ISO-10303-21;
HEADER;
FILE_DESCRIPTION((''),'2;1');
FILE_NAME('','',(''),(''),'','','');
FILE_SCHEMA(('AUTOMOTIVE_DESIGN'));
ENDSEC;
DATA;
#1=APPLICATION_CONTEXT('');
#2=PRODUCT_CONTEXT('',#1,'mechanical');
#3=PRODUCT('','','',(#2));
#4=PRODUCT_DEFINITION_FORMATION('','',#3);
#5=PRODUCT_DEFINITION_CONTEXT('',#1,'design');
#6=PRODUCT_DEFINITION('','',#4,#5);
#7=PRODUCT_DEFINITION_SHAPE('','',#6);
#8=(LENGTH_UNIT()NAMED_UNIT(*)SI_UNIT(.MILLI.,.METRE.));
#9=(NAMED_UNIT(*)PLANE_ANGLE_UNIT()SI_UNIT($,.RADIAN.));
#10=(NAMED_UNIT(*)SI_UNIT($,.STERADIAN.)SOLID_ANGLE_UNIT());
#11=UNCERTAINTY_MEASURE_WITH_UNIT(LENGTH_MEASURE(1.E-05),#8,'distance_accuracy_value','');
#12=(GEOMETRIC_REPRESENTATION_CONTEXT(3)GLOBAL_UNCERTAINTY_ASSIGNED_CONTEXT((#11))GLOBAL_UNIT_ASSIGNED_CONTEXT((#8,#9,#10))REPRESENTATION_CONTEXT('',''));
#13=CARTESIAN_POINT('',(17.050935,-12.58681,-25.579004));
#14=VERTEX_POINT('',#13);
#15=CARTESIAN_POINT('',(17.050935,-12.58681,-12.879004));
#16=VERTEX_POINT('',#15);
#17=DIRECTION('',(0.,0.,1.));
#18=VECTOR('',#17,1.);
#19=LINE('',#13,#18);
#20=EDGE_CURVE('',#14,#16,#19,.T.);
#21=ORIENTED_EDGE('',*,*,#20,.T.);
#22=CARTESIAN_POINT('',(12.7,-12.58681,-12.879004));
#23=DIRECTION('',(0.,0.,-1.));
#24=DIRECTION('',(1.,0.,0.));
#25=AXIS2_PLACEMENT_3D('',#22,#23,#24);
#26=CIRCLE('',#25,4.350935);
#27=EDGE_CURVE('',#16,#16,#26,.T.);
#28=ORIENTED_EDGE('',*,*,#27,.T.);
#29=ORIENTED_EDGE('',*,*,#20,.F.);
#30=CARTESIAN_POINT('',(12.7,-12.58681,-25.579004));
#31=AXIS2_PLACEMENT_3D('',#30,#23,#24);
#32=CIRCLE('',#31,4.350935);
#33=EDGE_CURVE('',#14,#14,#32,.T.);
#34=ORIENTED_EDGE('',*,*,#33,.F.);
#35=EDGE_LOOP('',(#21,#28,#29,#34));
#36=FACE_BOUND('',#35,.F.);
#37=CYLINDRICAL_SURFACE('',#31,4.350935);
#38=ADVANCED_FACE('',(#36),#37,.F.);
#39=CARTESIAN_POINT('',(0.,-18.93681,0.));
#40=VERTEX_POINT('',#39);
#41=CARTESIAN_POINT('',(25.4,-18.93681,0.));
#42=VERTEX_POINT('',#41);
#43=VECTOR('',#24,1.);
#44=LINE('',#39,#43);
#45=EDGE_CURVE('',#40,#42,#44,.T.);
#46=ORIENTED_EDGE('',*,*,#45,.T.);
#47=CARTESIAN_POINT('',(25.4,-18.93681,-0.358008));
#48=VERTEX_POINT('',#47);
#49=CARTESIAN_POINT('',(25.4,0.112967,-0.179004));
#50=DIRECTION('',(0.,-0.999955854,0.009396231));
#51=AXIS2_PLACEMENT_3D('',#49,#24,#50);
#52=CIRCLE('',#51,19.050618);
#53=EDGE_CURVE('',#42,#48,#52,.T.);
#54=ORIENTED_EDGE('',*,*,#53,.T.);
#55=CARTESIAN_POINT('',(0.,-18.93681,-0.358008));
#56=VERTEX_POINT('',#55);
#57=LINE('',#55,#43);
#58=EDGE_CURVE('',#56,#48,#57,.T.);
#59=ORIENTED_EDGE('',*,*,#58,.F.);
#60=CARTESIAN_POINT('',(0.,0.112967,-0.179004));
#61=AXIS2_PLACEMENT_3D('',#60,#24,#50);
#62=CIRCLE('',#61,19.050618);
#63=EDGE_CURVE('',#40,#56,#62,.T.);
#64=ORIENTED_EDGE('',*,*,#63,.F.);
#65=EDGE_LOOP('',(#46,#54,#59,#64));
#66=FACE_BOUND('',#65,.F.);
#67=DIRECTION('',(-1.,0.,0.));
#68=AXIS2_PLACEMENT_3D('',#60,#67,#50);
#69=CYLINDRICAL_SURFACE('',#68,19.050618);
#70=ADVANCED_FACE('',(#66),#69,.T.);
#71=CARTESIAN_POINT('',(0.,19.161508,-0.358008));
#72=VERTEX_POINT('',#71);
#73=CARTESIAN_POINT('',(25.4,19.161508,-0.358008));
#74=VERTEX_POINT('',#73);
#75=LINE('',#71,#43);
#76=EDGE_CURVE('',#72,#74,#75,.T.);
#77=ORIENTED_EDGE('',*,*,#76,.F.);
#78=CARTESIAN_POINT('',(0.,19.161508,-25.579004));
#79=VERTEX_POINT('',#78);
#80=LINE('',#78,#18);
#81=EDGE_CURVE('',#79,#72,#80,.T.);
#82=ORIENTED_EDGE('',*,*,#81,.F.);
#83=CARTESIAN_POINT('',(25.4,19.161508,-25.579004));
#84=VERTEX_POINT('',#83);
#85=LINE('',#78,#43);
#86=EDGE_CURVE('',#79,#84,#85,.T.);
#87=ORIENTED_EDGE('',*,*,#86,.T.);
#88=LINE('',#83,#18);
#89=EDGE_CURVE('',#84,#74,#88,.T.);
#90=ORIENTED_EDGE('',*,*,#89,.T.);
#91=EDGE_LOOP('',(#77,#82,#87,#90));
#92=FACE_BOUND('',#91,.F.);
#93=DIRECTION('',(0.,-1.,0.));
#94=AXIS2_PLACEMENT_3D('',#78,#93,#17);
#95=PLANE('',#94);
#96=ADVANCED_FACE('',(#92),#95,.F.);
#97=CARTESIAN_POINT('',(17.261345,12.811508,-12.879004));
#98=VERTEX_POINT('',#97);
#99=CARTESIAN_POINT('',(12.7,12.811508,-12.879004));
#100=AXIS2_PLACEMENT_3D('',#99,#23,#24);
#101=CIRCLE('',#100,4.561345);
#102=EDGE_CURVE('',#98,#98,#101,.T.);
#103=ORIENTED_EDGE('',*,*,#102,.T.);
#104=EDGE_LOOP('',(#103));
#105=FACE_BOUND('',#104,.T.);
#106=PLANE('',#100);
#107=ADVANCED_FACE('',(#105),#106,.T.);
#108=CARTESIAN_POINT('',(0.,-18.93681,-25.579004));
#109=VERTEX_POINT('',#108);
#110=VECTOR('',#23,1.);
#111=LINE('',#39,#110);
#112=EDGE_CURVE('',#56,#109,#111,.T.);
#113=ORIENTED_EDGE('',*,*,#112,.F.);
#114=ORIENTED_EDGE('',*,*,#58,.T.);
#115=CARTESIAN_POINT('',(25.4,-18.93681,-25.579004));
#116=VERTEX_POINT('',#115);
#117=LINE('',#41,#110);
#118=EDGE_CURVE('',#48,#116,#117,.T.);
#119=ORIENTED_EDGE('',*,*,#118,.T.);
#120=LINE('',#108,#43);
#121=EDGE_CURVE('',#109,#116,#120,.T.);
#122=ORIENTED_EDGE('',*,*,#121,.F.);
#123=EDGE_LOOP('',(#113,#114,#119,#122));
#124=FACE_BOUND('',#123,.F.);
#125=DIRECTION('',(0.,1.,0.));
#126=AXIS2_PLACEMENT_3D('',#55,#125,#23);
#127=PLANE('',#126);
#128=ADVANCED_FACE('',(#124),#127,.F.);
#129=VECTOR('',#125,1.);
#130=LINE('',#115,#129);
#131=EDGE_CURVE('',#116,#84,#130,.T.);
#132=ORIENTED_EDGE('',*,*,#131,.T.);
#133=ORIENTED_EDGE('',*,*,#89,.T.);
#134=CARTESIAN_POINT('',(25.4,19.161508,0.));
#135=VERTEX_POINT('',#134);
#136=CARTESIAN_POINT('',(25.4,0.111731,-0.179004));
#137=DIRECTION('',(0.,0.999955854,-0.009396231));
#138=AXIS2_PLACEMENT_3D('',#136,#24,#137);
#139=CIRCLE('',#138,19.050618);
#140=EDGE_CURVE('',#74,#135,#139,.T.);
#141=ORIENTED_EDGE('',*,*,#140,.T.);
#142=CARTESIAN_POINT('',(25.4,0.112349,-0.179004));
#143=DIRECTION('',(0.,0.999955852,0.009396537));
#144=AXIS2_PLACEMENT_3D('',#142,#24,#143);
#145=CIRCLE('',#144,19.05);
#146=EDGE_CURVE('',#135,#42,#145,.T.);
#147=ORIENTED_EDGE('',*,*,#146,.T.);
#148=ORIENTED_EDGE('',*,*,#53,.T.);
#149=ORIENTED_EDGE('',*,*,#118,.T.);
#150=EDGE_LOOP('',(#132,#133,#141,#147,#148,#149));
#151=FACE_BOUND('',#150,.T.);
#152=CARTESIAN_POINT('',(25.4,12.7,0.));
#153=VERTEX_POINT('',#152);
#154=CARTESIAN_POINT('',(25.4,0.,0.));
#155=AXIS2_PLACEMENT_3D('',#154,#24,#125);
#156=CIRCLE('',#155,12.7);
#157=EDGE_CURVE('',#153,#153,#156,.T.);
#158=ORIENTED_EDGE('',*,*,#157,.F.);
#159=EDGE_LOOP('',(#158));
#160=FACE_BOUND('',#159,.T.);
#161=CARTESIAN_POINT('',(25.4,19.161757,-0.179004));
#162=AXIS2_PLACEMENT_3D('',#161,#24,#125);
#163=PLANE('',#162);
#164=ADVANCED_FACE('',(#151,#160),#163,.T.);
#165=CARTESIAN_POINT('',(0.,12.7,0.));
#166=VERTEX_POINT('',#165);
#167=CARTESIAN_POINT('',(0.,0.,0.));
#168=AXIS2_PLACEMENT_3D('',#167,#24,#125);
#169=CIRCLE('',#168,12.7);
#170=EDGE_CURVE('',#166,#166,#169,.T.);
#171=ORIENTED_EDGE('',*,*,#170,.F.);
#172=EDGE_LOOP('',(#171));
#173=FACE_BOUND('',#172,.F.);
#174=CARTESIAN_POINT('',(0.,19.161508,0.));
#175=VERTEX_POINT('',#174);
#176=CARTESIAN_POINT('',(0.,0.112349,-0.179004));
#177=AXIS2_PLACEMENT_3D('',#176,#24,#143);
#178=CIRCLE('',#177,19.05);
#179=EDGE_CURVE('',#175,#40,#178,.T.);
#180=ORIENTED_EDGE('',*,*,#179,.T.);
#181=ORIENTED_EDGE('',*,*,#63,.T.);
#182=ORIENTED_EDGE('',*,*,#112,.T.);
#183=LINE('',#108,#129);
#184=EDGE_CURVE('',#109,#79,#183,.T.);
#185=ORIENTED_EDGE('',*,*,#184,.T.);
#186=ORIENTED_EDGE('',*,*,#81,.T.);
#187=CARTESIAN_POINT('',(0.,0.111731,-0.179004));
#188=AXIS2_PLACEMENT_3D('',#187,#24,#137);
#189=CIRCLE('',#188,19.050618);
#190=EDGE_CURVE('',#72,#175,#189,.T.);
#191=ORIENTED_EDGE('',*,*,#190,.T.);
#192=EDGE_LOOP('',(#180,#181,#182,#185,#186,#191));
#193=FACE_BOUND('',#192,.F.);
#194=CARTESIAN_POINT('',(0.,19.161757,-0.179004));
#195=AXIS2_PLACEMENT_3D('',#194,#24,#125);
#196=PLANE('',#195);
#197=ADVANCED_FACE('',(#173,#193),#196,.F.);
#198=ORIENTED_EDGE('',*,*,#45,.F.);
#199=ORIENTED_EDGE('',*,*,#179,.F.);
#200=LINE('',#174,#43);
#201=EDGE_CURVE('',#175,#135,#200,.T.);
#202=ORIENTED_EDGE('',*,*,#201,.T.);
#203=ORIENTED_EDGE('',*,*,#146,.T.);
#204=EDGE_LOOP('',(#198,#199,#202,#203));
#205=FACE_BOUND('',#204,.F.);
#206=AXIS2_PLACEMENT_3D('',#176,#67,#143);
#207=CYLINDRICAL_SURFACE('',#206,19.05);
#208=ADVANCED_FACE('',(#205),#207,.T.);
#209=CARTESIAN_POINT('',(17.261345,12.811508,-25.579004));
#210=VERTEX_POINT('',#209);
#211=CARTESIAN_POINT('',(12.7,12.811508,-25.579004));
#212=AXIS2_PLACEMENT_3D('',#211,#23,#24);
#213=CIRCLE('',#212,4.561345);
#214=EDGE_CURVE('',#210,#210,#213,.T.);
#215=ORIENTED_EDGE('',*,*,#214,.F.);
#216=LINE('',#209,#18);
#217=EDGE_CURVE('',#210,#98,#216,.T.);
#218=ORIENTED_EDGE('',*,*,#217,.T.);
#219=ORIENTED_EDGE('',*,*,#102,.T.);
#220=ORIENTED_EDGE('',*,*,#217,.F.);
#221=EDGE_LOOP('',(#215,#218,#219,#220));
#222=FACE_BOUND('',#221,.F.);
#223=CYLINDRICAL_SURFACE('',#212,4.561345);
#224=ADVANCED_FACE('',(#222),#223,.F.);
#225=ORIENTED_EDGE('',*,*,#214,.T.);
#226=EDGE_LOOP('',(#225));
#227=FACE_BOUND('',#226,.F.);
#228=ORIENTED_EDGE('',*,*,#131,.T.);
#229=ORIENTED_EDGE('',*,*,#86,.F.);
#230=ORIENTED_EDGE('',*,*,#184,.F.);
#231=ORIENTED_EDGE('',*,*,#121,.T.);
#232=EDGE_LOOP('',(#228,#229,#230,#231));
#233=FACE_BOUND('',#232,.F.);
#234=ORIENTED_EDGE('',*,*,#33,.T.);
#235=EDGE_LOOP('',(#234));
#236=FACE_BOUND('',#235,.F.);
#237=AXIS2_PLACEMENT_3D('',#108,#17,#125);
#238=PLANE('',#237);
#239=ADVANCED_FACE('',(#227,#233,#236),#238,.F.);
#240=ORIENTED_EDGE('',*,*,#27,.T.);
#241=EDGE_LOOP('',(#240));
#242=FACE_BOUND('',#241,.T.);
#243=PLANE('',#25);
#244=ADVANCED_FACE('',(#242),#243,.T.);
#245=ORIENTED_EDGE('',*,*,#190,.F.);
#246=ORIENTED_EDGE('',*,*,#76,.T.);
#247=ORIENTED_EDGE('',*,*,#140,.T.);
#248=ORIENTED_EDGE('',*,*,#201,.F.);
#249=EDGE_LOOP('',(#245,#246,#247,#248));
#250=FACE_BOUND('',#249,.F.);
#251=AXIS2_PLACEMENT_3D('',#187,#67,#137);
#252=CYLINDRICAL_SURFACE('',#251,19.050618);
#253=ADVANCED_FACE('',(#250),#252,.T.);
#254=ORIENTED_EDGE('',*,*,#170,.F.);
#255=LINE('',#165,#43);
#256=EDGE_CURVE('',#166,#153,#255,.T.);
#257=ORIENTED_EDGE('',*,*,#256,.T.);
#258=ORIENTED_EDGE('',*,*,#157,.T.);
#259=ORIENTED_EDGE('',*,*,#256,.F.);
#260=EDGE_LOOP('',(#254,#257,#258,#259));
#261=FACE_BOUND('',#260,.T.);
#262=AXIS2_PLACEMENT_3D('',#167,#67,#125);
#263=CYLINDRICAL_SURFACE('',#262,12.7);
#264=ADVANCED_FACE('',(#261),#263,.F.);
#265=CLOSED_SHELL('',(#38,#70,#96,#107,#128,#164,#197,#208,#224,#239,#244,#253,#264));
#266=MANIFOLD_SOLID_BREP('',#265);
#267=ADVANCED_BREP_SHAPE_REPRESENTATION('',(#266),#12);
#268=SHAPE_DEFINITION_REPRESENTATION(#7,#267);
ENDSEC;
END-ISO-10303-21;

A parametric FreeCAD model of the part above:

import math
import FreeCAD as App
import Part
import Sketcher
from FreeCAD import Vector
Q = App.Units.Quantity

doc = App.newDocument("Part")
body = doc.addObject("PartDesign::Body", "Body")

# Sketch on YZ plane
sketch1 = body.newObject("Sketcher::SketchObject", "Sketch")
sketch1.AttachmentSupport = (doc.getObject("YZ_Plane"), [""])
sketch1.MapMode = "FlatFace"
sketch1.addGeometry(Part.ArcOfCircle(Part.Circle(Vector(0.111731, -0.179004, 0), Vector(0, 0, 1), 19.050618), math.radians(-0.538372), math.radians(0.538372)), False)
sketch1.addGeometry(Part.ArcOfCircle(Part.Circle(Vector(0.112349, -0.179004, 0), Vector(0, 0, 1), 19.05), math.radians(0.53839), math.radians(179.46161)), False)
sketch1.addGeometry(Part.ArcOfCircle(Part.Circle(Vector(0.112967, -0.179004, 0), Vector(0, 0, 1), 19.050618), math.radians(179.461628), math.radians(180.538372)), False)
sketch1.addGeometry(Part.LineSegment(Vector(-18.93681, -0.358008, 0), Vector(-18.93681, -25.579004, 0)), False)
sketch1.addGeometry(Part.LineSegment(Vector(-18.93681, -25.579004, 0), Vector(19.161508, -25.579004, 0)), False)
sketch1.addGeometry(Part.LineSegment(Vector(19.161508, -25.579004, 0), Vector(19.161508, -0.358008, 0)), False)
sketch1.addGeometry(Part.Circle(Vector(0, 0, 0), Vector(0, 0, 1), 12.7), False)
sketch1.addConstraint(Sketcher.Constraint("Coincident", 0, 2, 1, 1))
sketch1.addConstraint(Sketcher.Constraint("Coincident", 1, 2, 2, 1))
sketch1.addConstraint(Sketcher.Constraint("Coincident", 2, 2, 3, 1))
sketch1.addConstraint(Sketcher.Constraint("Coincident", 3, 2, 4, 1))
sketch1.addConstraint(Sketcher.Constraint("Coincident", 4, 2, 5, 1))
sketch1.addConstraint(Sketcher.Constraint("Coincident", 5, 2, 0, 1))
sketch1.addConstraint(Sketcher.Constraint("Vertical", 3))
sketch1.addConstraint(Sketcher.Constraint("Horizontal", 4))
sketch1.addConstraint(Sketcher.Constraint("Vertical", 5))
sketch1.addConstraint(Sketcher.Constraint("Coincident", 6, 3, -1, 1))
sketch1.addConstraint(Sketcher.Constraint("PointOnObject", 0, 2, -1))
sketch1.addConstraint(Sketcher.Constraint("PointOnObject", 1, 2, -1))
sketch1.addConstraint(Sketcher.Constraint("Diameter", 6, Q("1 in")))
sketch1.addConstraint(Sketcher.Constraint("Radius", 1, Q("0.75 in")))
sketch1.addConstraint(Sketcher.Constraint("DistanceY", 3, 2, 0, 3, Q("1 in")))
sketch1.addConstraint(Sketcher.Constraint("DistanceY", 3, 2, 1, 3, Q("1 in")))
sketch1.addConstraint(Sketcher.Constraint("DistanceY", 3, 2, 2, 3, Q("1 in")))
sketch1.addConstraint(Sketcher.Constraint("Radius", 0, Q("19.050618 mm")))
sketch1.addConstraint(Sketcher.Constraint("Radius", 2, Q("19.050618 mm")))
sketch1.addConstraint(Sketcher.Constraint("DistanceX", 4, 1, 4, 2, Q("38.098318 mm")))
sketch1.addConstraint(Sketcher.Constraint("DistanceY", 3, 2, 3, 1, Q("25.220996 mm")))
sketch1.addConstraint(Sketcher.Constraint("DistanceX", -1, 1, 0, 3, Q("0.111731 mm")))
sketch1.addConstraint(Sketcher.Constraint("DistanceX", -1, 1, 0, 2, Q("19.161508 mm")))
pad1 = body.newObject("PartDesign::Pad", "Pad")
pad1.Profile = sketch1
pad1.Length = Q("1 in")

# Sketch on XY plane
sketch2 = body.newObject("Sketcher::SketchObject", "Sketch001")
sketch2.AttachmentSupport = (doc.getObject("XY_Plane"), [""])
sketch2.MapMode = "FlatFace"
sketch2.AttachmentOffset = App.Placement(Vector(0, 0, -25.579004), App.Rotation())
sketch2.addGeometry(Part.Circle(Vector(12.7, -12.6, 0), Vector(0, 0, 1), 4.4), False)
sketch2.addGeometry(Part.Circle(Vector(12.7, 12.8, 0), Vector(0, 0, 1), 4.6), False)
sketch2.addConstraint(Sketcher.Constraint("Vertical", 0, 3, 1, 3))
sketch2.addConstraint(Sketcher.Constraint("DistanceX", -1, 1, 0, 3, Q("0.5 in")))
sketch2.addConstraint(Sketcher.Constraint("Diameter", 0, Q("8.70187 mm")))
sketch2.addConstraint(Sketcher.Constraint("Diameter", 1, Q("9.12269 mm")))
sketch2.addConstraint(Sketcher.Constraint("DistanceY", 0, 3, -1, 1, Q("12.58681 mm")))
sketch2.addConstraint(Sketcher.Constraint("DistanceY", 0, 3, 1, 3, Q("25.398318 mm")))
pocket1 = body.newObject("PartDesign::Pocket", "Pocket")
pocket1.Profile = sketch2
pocket1.Length = Q("0.5 in")
pocket1.Reversed = True

doc.recompute()
